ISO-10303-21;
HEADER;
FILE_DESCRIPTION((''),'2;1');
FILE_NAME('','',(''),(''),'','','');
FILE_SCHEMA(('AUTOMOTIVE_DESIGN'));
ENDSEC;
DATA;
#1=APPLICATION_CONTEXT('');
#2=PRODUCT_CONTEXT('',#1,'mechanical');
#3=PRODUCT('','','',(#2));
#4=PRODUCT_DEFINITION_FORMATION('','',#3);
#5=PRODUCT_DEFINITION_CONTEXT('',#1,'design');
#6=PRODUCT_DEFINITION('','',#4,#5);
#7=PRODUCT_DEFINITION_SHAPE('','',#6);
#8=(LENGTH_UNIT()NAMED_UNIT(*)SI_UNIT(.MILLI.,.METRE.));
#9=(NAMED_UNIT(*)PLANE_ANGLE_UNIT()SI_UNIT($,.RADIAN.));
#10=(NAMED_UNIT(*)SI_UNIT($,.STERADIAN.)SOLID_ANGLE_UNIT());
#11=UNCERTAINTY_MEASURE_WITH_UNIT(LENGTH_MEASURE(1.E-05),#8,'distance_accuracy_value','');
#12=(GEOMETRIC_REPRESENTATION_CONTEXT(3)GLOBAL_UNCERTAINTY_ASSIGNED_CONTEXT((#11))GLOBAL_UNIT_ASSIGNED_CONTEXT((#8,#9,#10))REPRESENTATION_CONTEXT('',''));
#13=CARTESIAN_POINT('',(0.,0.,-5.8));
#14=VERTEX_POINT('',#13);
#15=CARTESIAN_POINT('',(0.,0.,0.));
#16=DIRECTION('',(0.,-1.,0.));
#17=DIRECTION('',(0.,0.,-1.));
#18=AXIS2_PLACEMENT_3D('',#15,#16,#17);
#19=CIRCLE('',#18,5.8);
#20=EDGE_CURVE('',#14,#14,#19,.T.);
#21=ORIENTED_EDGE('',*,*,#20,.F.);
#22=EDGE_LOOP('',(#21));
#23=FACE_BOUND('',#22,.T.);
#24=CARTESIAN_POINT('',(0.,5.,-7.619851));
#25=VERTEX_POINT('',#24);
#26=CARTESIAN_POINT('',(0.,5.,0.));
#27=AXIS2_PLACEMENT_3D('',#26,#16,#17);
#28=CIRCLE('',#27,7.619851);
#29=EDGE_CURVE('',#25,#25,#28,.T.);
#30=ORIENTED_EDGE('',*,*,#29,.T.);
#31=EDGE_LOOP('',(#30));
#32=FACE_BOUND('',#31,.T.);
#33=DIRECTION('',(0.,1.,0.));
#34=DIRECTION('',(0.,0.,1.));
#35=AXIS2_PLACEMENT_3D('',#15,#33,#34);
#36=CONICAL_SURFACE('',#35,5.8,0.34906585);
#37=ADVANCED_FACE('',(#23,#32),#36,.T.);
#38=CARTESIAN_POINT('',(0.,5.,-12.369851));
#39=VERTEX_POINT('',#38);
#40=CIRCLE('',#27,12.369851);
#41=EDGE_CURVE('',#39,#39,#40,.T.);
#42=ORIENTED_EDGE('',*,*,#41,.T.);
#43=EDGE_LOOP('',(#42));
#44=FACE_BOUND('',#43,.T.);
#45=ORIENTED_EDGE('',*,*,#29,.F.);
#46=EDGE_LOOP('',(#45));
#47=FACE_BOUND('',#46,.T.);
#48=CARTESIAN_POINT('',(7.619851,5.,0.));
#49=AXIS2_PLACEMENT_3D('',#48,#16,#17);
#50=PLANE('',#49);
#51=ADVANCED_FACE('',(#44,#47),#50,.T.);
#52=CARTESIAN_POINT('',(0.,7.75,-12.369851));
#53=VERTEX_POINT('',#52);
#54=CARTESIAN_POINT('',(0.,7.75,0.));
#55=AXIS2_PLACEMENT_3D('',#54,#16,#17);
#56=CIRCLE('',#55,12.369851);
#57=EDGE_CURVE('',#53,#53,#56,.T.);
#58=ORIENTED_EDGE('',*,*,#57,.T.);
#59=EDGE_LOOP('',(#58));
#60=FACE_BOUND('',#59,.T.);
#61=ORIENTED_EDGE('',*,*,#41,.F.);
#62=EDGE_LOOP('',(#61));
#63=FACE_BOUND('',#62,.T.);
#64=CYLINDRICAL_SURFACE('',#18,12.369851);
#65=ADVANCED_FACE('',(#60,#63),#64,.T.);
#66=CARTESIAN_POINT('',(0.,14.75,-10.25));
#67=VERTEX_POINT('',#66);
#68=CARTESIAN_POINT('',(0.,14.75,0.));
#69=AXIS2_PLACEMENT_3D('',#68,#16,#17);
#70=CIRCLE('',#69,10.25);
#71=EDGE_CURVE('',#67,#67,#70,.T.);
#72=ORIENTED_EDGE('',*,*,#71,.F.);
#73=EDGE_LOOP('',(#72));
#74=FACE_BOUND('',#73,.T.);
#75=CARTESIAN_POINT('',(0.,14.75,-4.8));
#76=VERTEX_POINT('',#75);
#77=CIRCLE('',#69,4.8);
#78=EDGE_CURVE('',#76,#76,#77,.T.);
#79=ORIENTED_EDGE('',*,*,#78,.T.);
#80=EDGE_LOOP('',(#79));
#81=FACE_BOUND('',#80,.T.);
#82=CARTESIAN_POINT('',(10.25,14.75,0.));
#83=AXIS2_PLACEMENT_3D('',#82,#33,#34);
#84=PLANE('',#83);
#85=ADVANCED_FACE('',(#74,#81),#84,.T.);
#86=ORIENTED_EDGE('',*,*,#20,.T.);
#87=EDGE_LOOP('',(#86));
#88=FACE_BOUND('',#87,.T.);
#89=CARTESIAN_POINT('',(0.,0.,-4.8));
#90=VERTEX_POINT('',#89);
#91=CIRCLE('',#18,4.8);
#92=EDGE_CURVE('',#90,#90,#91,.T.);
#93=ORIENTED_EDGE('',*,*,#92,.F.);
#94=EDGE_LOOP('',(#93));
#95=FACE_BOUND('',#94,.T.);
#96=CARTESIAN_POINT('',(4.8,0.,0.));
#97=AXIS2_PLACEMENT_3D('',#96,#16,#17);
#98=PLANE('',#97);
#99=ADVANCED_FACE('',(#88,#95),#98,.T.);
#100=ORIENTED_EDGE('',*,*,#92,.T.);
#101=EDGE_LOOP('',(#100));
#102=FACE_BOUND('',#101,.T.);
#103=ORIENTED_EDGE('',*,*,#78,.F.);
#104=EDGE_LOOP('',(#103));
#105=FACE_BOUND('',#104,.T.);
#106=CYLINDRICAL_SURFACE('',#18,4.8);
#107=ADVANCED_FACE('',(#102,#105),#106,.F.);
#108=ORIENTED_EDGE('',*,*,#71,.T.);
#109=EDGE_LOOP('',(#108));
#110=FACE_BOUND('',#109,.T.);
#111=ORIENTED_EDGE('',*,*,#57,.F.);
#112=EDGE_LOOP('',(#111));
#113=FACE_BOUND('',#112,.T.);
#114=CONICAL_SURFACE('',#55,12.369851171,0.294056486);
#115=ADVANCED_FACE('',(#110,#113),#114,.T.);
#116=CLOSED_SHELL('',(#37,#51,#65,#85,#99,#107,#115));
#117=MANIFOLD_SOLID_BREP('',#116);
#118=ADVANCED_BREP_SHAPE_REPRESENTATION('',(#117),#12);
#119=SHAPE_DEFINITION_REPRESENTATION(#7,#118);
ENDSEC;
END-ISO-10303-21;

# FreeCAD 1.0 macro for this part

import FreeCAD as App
import Part
import Sketcher

V = App.Vector
Q = App.Units.Quantity

doc = App.newDocument("Part")
body = doc.addObject("PartDesign::Body", "Body")

sketch1 = doc.addObject("Sketcher::SketchObject", "Sketch")
body.addObject(sketch1)
sketch1.AttachmentSupport = (doc.XY_Plane, [""])
sketch1.MapMode = "FlatFace"
sketch1.addGeometry(Part.LineSegment(V(4.8, 0, 0), V(5.8, 0, 0)), False)
sketch1.addGeometry(Part.LineSegment(V(5.8, 0, 0), V(7.6, 5, 0)), False)
sketch1.addGeometry(Part.LineSegment(V(7.6, 5, 0), V(12.4, 5, 0)), False)
sketch1.addGeometry(Part.LineSegment(V(12.4, 5, 0), V(12.4, 7.8, 0)), False)
sketch1.addGeometry(Part.LineSegment(V(12.4, 7.8, 0), V(10.2, 14.8, 0)), False)
sketch1.addGeometry(Part.LineSegment(V(10.2, 14.8, 0), V(4.8, 14.8, 0)), False)
sketch1.addGeometry(Part.LineSegment(V(4.8, 14.8, 0), V(4.8, 0, 0)), False)
sketch1.addConstraint(Sketcher.Constraint("Coincident", 0, 2, 1, 1))
sketch1.addConstraint(Sketcher.Constraint("Coincident", 1, 2, 2, 1))
sketch1.addConstraint(Sketcher.Constraint("Coincident", 2, 2, 3, 1))
sketch1.addConstraint(Sketcher.Constraint("Coincident", 3, 2, 4, 1))
sketch1.addConstraint(Sketcher.Constraint("Coincident", 4, 2, 5, 1))
sketch1.addConstraint(Sketcher.Constraint("Coincident", 5, 2, 6, 1))
sketch1.addConstraint(Sketcher.Constraint("Coincident", 6, 2, 0, 1))
sketch1.addConstraint(Sketcher.Constraint("Horizontal", 0))
sketch1.addConstraint(Sketcher.Constraint("Horizontal", 2))
sketch1.addConstraint(Sketcher.Constraint("Vertical", 3))
sketch1.addConstraint(Sketcher.Constraint("Horizontal", 5))
sketch1.addConstraint(Sketcher.Constraint("Vertical", 6))
sketch1.addConstraint(Sketcher.Constraint("PointOnObject", 0, 2, -1))
sketch1.addConstraint(Sketcher.Constraint("DistanceX", 0, 1, 0, 2, 1.0))
sketch1.addConstraint(Sketcher.Constraint("Angle", 1, Q("70 deg")))
sketch1.addConstraint(Sketcher.Constraint("DistanceY", -1, 1, 1, 2, 5.0))
sketch1.addConstraint(Sketcher.Constraint("DistanceY", 3, 2, 4, 2, 7.0))
sketch1.addConstraint(Sketcher.Constraint("DistanceX", 2, 1, 2, 2, 4.75))
sketch1.addConstraint(Sketcher.Constraint("DistanceX", 5, 2, 5, 1, 5.45))
sketch1.addConstraint(Sketcher.Constraint("DistanceY", 3, 1, 3, 2, 2.75))
sketch1.addConstraint(Sketcher.Constraint("DistanceX", -1, 1, 0, 2, 5.8))
revolution = doc.addObject("PartDesign::Revolution", "Revolution")
body.addObject(revolution)
revolution.Profile = sketch1
revolution.ReferenceAxis = (sketch1, ["V_Axis"])
revolution.Angle = 360

doc.recompute()
